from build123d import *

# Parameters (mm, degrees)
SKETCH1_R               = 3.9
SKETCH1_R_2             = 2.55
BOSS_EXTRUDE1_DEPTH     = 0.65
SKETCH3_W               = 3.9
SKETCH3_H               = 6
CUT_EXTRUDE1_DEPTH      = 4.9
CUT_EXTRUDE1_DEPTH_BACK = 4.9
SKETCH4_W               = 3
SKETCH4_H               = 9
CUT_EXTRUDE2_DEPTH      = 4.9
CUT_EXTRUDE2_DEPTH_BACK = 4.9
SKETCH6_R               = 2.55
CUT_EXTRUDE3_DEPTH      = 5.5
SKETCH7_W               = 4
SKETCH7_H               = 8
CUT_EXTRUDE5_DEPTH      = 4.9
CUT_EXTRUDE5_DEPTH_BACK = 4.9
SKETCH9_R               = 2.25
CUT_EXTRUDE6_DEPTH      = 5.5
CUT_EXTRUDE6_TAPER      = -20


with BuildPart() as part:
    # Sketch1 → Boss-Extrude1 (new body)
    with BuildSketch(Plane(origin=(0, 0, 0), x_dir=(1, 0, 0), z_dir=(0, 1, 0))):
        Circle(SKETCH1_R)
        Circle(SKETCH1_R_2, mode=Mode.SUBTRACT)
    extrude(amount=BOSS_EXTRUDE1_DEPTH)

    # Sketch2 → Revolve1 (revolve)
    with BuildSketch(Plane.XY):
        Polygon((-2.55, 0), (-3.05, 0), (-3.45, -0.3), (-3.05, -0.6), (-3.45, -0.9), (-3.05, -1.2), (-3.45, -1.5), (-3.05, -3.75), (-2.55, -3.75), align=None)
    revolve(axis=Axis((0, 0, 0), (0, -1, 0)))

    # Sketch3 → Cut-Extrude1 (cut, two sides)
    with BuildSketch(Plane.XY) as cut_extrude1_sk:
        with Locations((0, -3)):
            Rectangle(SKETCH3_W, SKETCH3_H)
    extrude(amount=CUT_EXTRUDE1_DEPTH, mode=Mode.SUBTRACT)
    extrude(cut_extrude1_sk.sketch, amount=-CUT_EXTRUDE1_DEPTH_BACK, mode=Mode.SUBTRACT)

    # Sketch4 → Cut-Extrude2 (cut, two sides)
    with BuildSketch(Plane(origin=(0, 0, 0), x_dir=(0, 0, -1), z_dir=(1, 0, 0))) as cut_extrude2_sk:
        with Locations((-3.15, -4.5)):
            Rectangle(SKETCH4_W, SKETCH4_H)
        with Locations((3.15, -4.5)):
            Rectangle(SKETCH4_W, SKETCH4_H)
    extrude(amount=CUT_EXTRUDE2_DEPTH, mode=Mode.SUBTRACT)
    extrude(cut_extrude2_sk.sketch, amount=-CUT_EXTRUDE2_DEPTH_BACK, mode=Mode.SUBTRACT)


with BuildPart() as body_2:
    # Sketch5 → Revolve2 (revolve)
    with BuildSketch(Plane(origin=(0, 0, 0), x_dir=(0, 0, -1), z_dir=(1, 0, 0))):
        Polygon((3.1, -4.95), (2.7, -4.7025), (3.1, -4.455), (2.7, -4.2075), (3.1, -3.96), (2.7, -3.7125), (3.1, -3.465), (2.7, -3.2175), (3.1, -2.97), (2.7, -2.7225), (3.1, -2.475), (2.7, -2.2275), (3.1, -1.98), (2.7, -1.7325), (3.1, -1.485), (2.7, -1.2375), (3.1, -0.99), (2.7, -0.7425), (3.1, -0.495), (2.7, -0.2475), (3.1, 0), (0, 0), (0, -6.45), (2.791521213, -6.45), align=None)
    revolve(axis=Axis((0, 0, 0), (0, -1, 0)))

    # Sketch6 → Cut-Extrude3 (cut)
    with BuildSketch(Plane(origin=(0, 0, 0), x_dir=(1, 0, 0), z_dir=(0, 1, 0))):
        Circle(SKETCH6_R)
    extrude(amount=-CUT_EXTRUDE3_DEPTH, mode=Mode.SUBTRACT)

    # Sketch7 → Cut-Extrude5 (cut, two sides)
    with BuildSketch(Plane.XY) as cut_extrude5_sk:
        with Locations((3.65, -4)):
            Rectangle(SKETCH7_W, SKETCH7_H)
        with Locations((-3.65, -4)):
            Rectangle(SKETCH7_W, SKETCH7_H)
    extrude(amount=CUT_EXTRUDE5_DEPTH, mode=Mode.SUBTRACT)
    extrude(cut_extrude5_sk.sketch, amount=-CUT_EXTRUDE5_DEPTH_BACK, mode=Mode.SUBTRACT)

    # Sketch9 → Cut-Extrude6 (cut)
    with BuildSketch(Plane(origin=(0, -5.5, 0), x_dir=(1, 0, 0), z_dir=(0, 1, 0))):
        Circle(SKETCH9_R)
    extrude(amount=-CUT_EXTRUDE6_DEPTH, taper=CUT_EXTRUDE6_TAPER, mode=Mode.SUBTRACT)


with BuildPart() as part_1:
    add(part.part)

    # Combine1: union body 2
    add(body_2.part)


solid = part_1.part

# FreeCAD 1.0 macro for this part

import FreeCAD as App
import Part
import Sketcher

V = App.Vector


def add_polygon(sketch, points):
    """Adds a closed chain of lines whose ends are joined by coincident constraints."""
    first, n = sketch.GeometryCount, len(points)
    for a, b in zip(points, points[1:] + points[:1]):
        sketch.addGeometry(Part.LineSegment(App.Vector(*a, 0), App.Vector(*b, 0)), False)
    for i in range(n):
        sketch.addConstraint(Sketcher.Constraint("Coincident", first + i, 2, first + (i + 1) % n, 1))

doc = App.newDocument("Part")
body = doc.addObject("PartDesign::Body", "Body")

# Sketch on XZ plane
sketch1 = body.newObject("Sketcher::SketchObject", "Sketch")
sketch1.AttachmentSupport = (doc.getObject("XZ_Plane"), [""])
sketch1.MapMode = "FlatFace"
sketch1.addGeometry([
    Part.Circle(V(0, 0, 0), V(0, 0, 1), 3.9),
    Part.Circle(V(0, 0, 0), V(0, 0, 1), 2.5),
], False)
sketch1.addConstraint([
    Sketcher.Constraint("Coincident", 0, 3, -1, 1),
    Sketcher.Constraint("Coincident", 1, 3, -1, 1),
    Sketcher.Constraint("Diameter", 0, 7.8),
    Sketcher.Constraint("Diameter", 1, 5.1),
])
pad1 = body.newObject("PartDesign::Pad", "Pad")
pad1.Profile = sketch1
pad1.Length = 0.65
pad1.Reversed = True

# Sketch on XY plane
sketch2 = body.newObject("Sketcher::SketchObject", "Sketch001")
sketch2.AttachmentSupport = (doc.getObject("XY_Plane"), [""])
sketch2.MapMode = "FlatFace"
add_polygon(sketch2, [(-2.5, 0), (-3, 0), (-3.5, -0.3), (-3, -0.6), (-3.5, -0.9), (-3, -1.2), (-3.5, -1.5), (-3, -3.8), (-2.5, -3.8)])  # lines 0-8
sketch2.addConstraint([
    Sketcher.Constraint("Horizontal", 0),
    Sketcher.Constraint("Horizontal", 7),
    Sketcher.Constraint("Vertical", 8),
    Sketcher.Constraint("PointOnObject", 0, 2, -1),
    Sketcher.Constraint("Parallel", 1, 3),
    Sketcher.Constraint("Parallel", 2, 4),
    Sketcher.Constraint("Parallel", 3, 5),
    Sketcher.Constraint("Vertical", 0, 2, 2, 2),
    Sketcher.Constraint("Vertical", 1, 2, 3, 2),
    Sketcher.Constraint("Vertical", 2, 2, 4, 2),
    Sketcher.Constraint("Vertical", 3, 2, 5, 2),
    Sketcher.Constraint("Vertical", 4, 2, 6, 2),
    Sketcher.Constraint("Equal", 1, 2),
    Sketcher.Constraint("DistanceX", 0, 2, 0, 1, 0.5),
    Sketcher.Constraint("Distance", 1, 0.5),
    Sketcher.Constraint("DistanceY", 8, 1, 8, 2, 3.75),
    Sketcher.Constraint("DistanceY", 1, 2, -1, 1, 0.3),
    Sketcher.Constraint("DistanceX", 0, 2, -1, 1, 3.05),
])
revolution = body.newObject("PartDesign::Revolution", "Revolution")
revolution.Profile = sketch2
revolution.ReferenceAxis = (sketch2, ["V_Axis"])
revolution.Angle = 360

# Sketch on XY plane
sketch3 = body.newObject("Sketcher::SketchObject", "Sketch002")
sketch3.AttachmentSupport = (doc.getObject("XY_Plane"), [""])
sketch3.MapMode = "FlatFace"
add_polygon(sketch3, [(-1.9, 0), (-1.9, -6), (1.9, -6), (1.9, 0)])  # lines 0-3
sketch3.addConstraint([
    Sketcher.Constraint("Vertical", 0),
    Sketcher.Constraint("Horizontal", 1),
    Sketcher.Constraint("Vertical", 2),
    Sketcher.Constraint("Horizontal", 3),
    Sketcher.Constraint("Symmetric", 2, 2, 3, 2, -1, 1),
    Sketcher.Constraint("DistanceY", 0, 2, 0, 1, 6.0),
    Sketcher.Constraint("DistanceX", 1, 1, 1, 2, 3.9),
])
pocket1 = body.newObject("PartDesign::Pocket", "Pocket")
pocket1.Profile = sketch3
pocket1.Type = "ThroughAll"
pocket1.Midplane = True

# Sketch on YZ plane
sketch4 = body.newObject("Sketcher::SketchObject", "Sketch003")
sketch4.AttachmentSupport = (doc.getObject("YZ_Plane"), [""])
sketch4.MapMode = "FlatFace"
add_polygon(sketch4, [(0, 4.7), (-9, 4.7), (-9, 1.6), (0, 1.6)])  # lines 0-3
add_polygon(sketch4, [(0, -1.6), (-9, -1.6), (-9, -4.7), (0, -4.7)])  # lines 4-7
sketch4.addConstraint([
    Sketcher.Constraint("Horizontal", 0),
    Sketcher.Constraint("Vertical", 1),
    Sketcher.Constraint("Horizontal", 2),
    Sketcher.Constraint("Vertical", 3),
    Sketcher.Constraint("Horizontal", 4),
    Sketcher.Constraint("Vertical", 5),
    Sketcher.Constraint("Horizontal", 6),
    Sketcher.Constraint("Vertical", 7),
    Sketcher.Constraint("Symmetric", 3, 2, 6, 2, -1, 1),
    Sketcher.Constraint("Symmetric", 1, 2, 4, 2, -1),
    Sketcher.Constraint("PointOnObject", 2, 2, -2),
    Sketcher.Constraint("DistanceX", 0, 2, 0, 1, 9.0),
    Sketcher.Constraint("DistanceY", 1, 2, 1, 1, 3.0),
    Sketcher.Constraint("DistanceY", 4, 2, 1, 2, 3.3),
])
pocket2 = body.newObject("PartDesign::Pocket", "Pocket001")
pocket2.Profile = sketch4
pocket2.Type = "ThroughAll"
pocket2.Midplane = True
body2 = doc.addObject("PartDesign::Body", "Body001")
body2.AllowCompound = True

# Sketch on YZ plane
sketch5 = body2.newObject("Sketcher::SketchObject", "Sketch004")
sketch5.AttachmentSupport = (doc.getObject("YZ_Plane001"), [""])
sketch5.MapMode = "FlatFace"
add_polygon(sketch5, [(-4.95, -3.1), (-4.7, -2.7), (-4.46, -3.1), (-4.21, -2.7), (-3.96, -3.1), (-3.71, -2.7), (-3.46, -3.1), (-3.22, -2.7), (-2.97, -3.1), (-2.72, -2.7), (-2.48, -3.1), (-2.23, -2.7), (-1.98, -3.1), (-1.73, -2.7), (-1.49, -3.1), (-1.24, -2.7), (-0.99, -3.1), (-0.74, -2.7), (-0.49, -3.1), (-0.25, -2.7), (0, -3.1), (0, 0), (-6.45, 0), (-6.45, -2.79)])  # lines 0-23
sketch5.addConstraint([
    Sketcher.Constraint("Vertical", 20),
    Sketcher.Constraint("Horizontal", 21),
    Sketcher.Constraint("Vertical", 22),
    Sketcher.Constraint("Coincident", 20, 2, -1, 1),
    Sketcher.Constraint("Parallel", 0, 2),
    Sketcher.Constraint("Parallel", 1, 3),
    Sketcher.Constraint("Parallel", 2, 4),
    Sketcher.Constraint("Parallel", 3, 5),
    Sketcher.Constraint("Parallel", 4, 6),
    Sketcher.Constraint("Parallel", 5, 7),
    Sketcher.Constraint("Parallel", 6, 8),
    Sketcher.Constraint("Parallel", 7, 9),
    Sketcher.Constraint("Parallel", 8, 10),
    Sketcher.Constraint("Parallel", 9, 11),
    Sketcher.Constraint("Parallel", 10, 12),
    Sketcher.Constraint("Parallel", 11, 13),
    Sketcher.Constraint("Parallel", 12, 14),
    Sketcher.Constraint("Parallel", 13, 15),
    Sketcher.Constraint("Parallel", 14, 16),
    Sketcher.Constraint("Parallel", 15, 17),
    Sketcher.Constraint("Parallel", 16, 18),
    Sketcher.Constraint("Parallel", 17, 19),
    Sketcher.Constraint("Horizontal", 0, 2, 2, 2),
    Sketcher.Constraint("Horizontal", 1, 2, 3, 2),
    Sketcher.Constraint("Horizontal", 2, 2, 4, 2),
    Sketcher.Constraint("Horizontal", 3, 2, 5, 2),
    Sketcher.Constraint("Horizontal", 4, 2, 6, 2),
    Sketcher.Constraint("Horizontal", 5, 2, 7, 2),
    Sketcher.Constraint("Horizontal", 6, 2, 8, 2),
    Sketcher.Constraint("Horizontal", 7, 2, 9, 2),
    Sketcher.Constraint("Horizontal", 8, 2, 10, 2),
    Sketcher.Constraint("Horizontal", 9, 2, 11, 2),
    Sketcher.Constraint("Horizontal", 10, 2, 12, 2),
    Sketcher.Constraint("Horizontal", 11, 2, 13, 2),
    Sketcher.Constraint("Horizontal", 12, 2, 14, 2),
    Sketcher.Constraint("Horizontal", 13, 2, 15, 2),
    Sketcher.Constraint("Horizontal", 14, 2, 16, 2),
    Sketcher.Constraint("Horizontal", 15, 2, 17, 2),
    Sketcher.Constraint("Horizontal", 16, 2, 18, 2),
    Sketcher.Constraint("Horizontal", 17, 2, 19, 2),
    Sketcher.Constraint("Horizontal", 19, 2, 23, 2),
    Sketcher.Constraint("Equal", 0, 1),
    Sketcher.Constraint("DistanceY", 20, 1, 20, 2, 3.1),
    Sketcher.Constraint("DistanceX", 21, 2, 21, 1, 6.45),
    Sketcher.Constraint("DistanceY", 0, 2, -1, 1, 2.7),
    Sketcher.Constraint("DistanceX", 3, 2, -1, 1, 3.96),
    Sketcher.Constraint("DistanceY", 22, 2, 22, 1, 2.791521),
])
revolution2 = body2.newObject("PartDesign::Revolution", "Revolution001")
revolution2.Profile = sketch5
revolution2.ReferenceAxis = (sketch5, ["H_Axis"])
revolution2.Angle = 360

# Sketch on XZ plane
sketch6 = body2.newObject("Sketcher::SketchObject", "Sketch005")
sketch6.AttachmentSupport = (doc.getObject("XZ_Plane001"), [""])
sketch6.MapMode = "FlatFace"
sketch6.addGeometry(Part.Circle(V(0, 0, 0), V(0, 0, 1), 2.5), False)
sketch6.addConstraint([
    Sketcher.Constraint("Coincident", 0, 3, -1, 1),
    Sketcher.Constraint("Diameter", 0, 5.1),
])
pocket3 = body2.newObject("PartDesign::Pocket", "Pocket002")
pocket3.Profile = sketch6
pocket3.Length = 5.5
pocket3.Reversed = True

# Sketch on XY plane
sketch7 = body2.newObject("Sketcher::SketchObject", "Sketch006")
sketch7.AttachmentSupport = (doc.getObject("XY_Plane001"), [""])
sketch7.MapMode = "FlatFace"
add_polygon(sketch7, [(1.6, 0), (1.6, -8), (5.7, -8), (5.7, 0)])  # lines 0-3
add_polygon(sketch7, [(-5.7, 0), (-5.7, -8), (-1.6, -8), (-1.6, 0)])  # lines 4-7
sketch7.addConstraint([
    Sketcher.Constraint("Vertical", 0),
    Sketcher.Constraint("Horizontal", 1),
    Sketcher.Constraint("Vertical", 2),
    Sketcher.Constraint("Horizontal", 3),
    Sketcher.Constraint("Vertical", 4),
    Sketcher.Constraint("Horizontal", 5),
    Sketcher.Constraint("Vertical", 6),
    Sketcher.Constraint("Horizontal", 7),
    Sketcher.Constraint("Symmetric", 3, 2, 6, 2, -1, 1),
    Sketcher.Constraint("Symmetric", 1, 2, 4, 2, -2),
    Sketcher.Constraint("PointOnObject", 2, 2, -1),
    Sketcher.Constraint("DistanceX", 1, 1, 1, 2, 4.0),
    Sketcher.Constraint("DistanceY", 0, 2, 0, 1, 8.0),
    Sketcher.Constraint("DistanceX", 4, 2, 0, 2, 7.3),
])
pocket4 = body2.newObject("PartDesign::Pocket", "Pocket003")
pocket4.Profile = sketch7
pocket4.Type = "ThroughAll"
pocket4.Midplane = True

# Sketch on XZ plane
sketch8 = body2.newObject("Sketcher::SketchObject", "Sketch007")
sketch8.AttachmentSupport = (doc.getObject("XZ_Plane001"), [""])
sketch8.MapMode = "FlatFace"
sketch8.AttachmentOffset = App.Placement(V(0, 0, 5.5), App.Rotation())
sketch8.addGeometry(Part.Circle(V(0, 0, 0), V(0, 0, 1), 2.2), False)
sketch8.addConstraint([
    Sketcher.Constraint("Coincident", 0, 3, -1, 1),
    Sketcher.Constraint("Diameter", 0, 4.5),
])
pocket5 = body2.newObject("PartDesign::Pocket", "Pocket004")
pocket5.Profile = sketch8
pocket5.Length = 5.5
pocket5.Reversed = True
pocket5.TaperAngle = 20
doc.recompute()

boolean = body.newObject("PartDesign::Boolean", "Boolean")
boolean.Type = "Fuse"
boolean.addObjects([body2])

doc.recompute()
